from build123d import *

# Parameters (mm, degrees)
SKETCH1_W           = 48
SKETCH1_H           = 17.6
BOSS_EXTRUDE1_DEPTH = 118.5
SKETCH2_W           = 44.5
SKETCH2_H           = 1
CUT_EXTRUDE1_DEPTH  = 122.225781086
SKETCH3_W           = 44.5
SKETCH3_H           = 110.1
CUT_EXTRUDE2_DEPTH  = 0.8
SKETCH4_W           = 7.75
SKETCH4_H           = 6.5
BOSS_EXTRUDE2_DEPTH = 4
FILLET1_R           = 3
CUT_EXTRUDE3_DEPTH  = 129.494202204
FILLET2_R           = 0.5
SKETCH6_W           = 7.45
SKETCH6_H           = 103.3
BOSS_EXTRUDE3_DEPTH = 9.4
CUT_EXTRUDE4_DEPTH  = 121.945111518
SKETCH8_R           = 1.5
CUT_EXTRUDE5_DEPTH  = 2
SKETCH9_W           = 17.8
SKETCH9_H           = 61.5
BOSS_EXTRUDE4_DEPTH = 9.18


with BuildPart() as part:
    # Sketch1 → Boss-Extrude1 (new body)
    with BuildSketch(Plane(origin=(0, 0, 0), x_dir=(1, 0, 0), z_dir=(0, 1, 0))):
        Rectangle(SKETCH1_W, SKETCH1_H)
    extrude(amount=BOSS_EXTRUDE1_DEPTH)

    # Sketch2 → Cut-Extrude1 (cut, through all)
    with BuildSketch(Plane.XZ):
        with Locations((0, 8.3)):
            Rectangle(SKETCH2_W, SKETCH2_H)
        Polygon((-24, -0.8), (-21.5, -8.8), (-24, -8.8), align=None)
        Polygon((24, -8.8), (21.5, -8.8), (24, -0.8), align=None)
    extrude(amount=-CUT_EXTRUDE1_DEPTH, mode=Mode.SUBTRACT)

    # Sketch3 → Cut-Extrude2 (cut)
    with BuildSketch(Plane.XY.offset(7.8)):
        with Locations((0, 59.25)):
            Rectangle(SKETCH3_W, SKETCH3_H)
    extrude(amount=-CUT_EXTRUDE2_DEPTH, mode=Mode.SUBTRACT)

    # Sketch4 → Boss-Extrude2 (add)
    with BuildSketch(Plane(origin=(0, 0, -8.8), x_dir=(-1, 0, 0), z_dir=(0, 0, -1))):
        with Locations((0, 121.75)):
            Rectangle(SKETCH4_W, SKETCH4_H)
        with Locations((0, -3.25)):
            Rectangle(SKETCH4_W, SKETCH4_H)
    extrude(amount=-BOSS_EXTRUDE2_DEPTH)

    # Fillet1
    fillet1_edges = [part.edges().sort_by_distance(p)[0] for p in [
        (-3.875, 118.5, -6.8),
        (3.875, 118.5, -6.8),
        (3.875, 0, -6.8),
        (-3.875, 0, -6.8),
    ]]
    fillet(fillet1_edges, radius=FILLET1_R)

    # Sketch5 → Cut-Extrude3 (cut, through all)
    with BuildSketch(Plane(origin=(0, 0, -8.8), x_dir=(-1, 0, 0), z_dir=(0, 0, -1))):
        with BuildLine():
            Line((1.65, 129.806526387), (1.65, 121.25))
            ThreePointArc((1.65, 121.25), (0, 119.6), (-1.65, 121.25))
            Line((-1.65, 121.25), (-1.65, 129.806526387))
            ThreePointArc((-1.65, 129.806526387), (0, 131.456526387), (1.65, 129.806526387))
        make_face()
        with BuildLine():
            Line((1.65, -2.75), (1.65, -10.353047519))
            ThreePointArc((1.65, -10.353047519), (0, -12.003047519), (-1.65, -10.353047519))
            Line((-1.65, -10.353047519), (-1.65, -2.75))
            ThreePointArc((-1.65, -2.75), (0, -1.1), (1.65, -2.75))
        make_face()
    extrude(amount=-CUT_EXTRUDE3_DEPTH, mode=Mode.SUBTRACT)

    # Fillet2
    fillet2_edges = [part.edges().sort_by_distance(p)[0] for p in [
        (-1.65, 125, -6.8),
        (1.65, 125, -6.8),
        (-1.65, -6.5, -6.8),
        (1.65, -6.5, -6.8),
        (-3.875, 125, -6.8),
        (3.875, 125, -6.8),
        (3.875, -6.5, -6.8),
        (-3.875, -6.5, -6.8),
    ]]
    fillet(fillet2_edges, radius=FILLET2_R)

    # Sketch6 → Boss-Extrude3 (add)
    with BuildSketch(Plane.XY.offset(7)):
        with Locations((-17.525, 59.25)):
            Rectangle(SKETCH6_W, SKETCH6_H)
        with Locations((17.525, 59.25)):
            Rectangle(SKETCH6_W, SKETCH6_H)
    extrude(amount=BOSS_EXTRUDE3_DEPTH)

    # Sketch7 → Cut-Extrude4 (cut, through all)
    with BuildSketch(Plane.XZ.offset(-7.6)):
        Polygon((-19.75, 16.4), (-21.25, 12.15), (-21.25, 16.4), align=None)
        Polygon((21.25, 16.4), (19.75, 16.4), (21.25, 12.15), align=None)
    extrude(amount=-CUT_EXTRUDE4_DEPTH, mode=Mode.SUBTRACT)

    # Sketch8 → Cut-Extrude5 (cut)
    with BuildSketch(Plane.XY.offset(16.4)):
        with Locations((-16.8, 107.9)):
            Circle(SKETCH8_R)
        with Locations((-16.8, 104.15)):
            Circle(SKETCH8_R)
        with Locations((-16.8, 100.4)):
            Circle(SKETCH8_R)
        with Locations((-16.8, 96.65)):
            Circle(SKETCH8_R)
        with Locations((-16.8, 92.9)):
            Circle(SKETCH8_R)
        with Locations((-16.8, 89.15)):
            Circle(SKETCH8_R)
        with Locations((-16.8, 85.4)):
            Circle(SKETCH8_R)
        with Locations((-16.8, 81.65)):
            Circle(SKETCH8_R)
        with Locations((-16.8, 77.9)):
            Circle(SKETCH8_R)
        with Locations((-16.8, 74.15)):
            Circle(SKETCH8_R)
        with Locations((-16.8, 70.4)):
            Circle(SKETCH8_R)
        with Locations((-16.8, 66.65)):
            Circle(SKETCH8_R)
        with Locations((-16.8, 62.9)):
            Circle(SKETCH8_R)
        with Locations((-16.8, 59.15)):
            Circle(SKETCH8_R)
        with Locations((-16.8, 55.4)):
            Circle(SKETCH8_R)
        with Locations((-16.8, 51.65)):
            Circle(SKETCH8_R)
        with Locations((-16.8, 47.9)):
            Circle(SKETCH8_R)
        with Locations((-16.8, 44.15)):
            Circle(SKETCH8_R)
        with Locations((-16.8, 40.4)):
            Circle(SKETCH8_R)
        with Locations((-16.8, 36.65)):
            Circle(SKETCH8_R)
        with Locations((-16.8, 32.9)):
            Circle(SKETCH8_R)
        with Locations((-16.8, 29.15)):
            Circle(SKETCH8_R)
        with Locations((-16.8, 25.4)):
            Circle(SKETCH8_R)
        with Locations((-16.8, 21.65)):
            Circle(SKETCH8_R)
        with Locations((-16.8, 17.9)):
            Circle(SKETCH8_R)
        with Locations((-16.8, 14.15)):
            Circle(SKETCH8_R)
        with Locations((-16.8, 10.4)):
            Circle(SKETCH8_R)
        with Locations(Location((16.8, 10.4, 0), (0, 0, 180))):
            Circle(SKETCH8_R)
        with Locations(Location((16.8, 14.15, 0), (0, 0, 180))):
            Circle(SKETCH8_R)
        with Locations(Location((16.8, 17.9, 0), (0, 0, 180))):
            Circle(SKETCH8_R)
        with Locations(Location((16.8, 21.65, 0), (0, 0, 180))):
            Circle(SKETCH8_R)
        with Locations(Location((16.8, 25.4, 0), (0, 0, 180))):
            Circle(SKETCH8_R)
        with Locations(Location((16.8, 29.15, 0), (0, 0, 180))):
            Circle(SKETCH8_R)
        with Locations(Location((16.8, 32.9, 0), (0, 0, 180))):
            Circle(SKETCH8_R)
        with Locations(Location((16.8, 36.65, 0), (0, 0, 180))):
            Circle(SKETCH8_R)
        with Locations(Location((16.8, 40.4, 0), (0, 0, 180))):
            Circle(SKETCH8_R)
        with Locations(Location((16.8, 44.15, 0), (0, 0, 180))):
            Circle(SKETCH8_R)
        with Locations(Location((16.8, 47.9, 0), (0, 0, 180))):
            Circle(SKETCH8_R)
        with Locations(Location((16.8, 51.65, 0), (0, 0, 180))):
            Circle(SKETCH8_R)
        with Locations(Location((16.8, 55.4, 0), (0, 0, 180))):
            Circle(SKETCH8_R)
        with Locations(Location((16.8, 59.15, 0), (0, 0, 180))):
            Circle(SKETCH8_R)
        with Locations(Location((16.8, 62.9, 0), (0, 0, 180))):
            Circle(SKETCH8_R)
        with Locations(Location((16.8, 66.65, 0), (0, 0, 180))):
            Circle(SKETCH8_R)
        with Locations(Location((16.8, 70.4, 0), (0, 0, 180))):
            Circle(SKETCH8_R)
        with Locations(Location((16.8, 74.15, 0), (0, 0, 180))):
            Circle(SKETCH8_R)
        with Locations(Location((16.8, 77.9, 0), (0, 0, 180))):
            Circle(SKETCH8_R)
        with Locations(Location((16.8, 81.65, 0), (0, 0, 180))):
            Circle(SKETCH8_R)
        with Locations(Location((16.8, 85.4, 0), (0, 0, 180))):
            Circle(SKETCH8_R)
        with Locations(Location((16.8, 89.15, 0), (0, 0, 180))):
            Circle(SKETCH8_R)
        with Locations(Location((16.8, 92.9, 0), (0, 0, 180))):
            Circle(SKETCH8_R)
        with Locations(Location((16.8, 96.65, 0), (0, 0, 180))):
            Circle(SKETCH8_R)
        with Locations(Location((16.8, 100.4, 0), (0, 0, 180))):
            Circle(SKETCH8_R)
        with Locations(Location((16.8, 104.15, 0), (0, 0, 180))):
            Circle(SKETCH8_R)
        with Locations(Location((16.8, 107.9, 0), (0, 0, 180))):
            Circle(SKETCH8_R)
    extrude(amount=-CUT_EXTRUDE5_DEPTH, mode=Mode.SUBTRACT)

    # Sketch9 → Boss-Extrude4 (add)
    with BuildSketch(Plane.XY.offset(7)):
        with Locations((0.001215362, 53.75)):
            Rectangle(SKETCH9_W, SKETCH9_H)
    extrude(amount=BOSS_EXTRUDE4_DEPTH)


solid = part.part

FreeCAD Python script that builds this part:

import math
import FreeCAD as App
import Part
import Sketcher
from FreeCAD import Vector
Q = App.Units.Quantity


def edges_at(feature, points):
    """Names of the edges that pass closest to the given points."""
    edges = feature.Shape.Edges
    near = lambda p: min(range(len(edges)), key=lambda i: edges[i].distToShape(Part.Vertex(*p))[0])
    return sorted({f"Edge{near(p) + 1}" for p in points})

doc = App.newDocument("Part")
params = doc.addObject("Spreadsheet::Sheet", "Params")
for row, (alias, value) in enumerate([
    ("sketch1_width", "48 mm"),
    ("sketch1_height", "17.6 mm"),
    ("pad1_length", "118.5 mm"),
    ("sketch2_height", "1 mm"),
    ("sketch2_height2", "8 mm"),
    ("sketch2_width", "44.5 mm"),
    ("sketch2_width2", "2.5 mm"),
    ("sketch3_width", "44.5 mm"),
    ("sketch3_height", "110.1 mm"),
    ("pocket2_length", "0.8 mm"),
    ("sketch4_height", "6.5 mm"),
    ("sketch4_width", "7.75 mm"),
    ("pad2_length", "4 mm"),
    ("fillet_radius", "3 mm"),
    ("sketch5_radius", "1.65 mm"),
    ("fillet2_radius", "0.5 mm"),
    ("sketch6_height", "103.3 mm"),
    ("sketch6_width", "7.45 mm"),
    ("pad3_length", "9.4 mm"),
    ("sketch7_width", "1.5 mm"),
    ("sketch7_height", "4.25 mm"),
    ("sketch8_diameter", "3 mm"),
    ("pocket5_length", "2 mm"),
    ("sketch9_width", "17.8 mm"),
    ("sketch9_height", "61.5 mm"),
    ("pad4_length", "9.18 mm"),
], start=1):
    params.set(f"A{row}", alias)
    params.set(f"B{row}", "=" + value)
    params.setAlias(f"B{row}", alias)

body = doc.addObject("PartDesign::Body", "Body")

sketch1 = body.newObject("Sketcher::SketchObject", "Sketch")
sketch1.AttachmentSupport = (doc.getObject("XZ_Plane"), [""])
sketch1.MapMode = "FlatFace"
sketch1.addGeometry([
    Part.LineSegment(Vector(-24, -8.8, 0), Vector(-24, 8.8, 0)),
    Part.LineSegment(Vector(-24, 8.8, 0), Vector(24, 8.8, 0)),
    Part.LineSegment(Vector(24, 8.8, 0), Vector(24, -8.8, 0)),
    Part.LineSegment(Vector(24, -8.8, 0), Vector(-24, -8.8, 0)),
], False)
sketch1.addConstraint([
    Sketcher.Constraint("Coincident", 0, 2, 1, 1),
    Sketcher.Constraint("Coincident", 1, 2, 2, 1),
    Sketcher.Constraint("Coincident", 2, 2, 3, 1),
    Sketcher.Constraint("Coincident", 3, 2, 0, 1),
    Sketcher.Constraint("Vertical", 0),
    Sketcher.Constraint("Horizontal", 1),
    Sketcher.Constraint("Vertical", 2),
    Sketcher.Constraint("Horizontal", 3),
    Sketcher.Constraint("Symmetric", 0, 2, 2, 2, -1, 1),
    Sketcher.Constraint("DistanceX", 1, 1, 1, 2, Q("48 mm")),
    Sketcher.Constraint("DistanceY", 0, 1, 0, 2, Q("17.6 mm")),
])
sketch1.setExpression("Constraints[9]", "Params.sketch1_width")
sketch1.setExpression("Constraints[10]", "Params.sketch1_height")
pad1 = body.newObject("PartDesign::Pad", "Pad")
pad1.Profile = sketch1
pad1.setExpression("Length", "Params.pad1_length")
pad1.Reversed = True

sketch2 = body.newObject("Sketcher::SketchObject", "Sketch001")
sketch2.AttachmentSupport = (doc.getObject("XZ_Plane"), [""])
sketch2.MapMode = "FlatFace"
sketch2.addGeometry([
    Part.LineSegment(Vector(-22.25, 8.8, 0), Vector(-22.25, 7.8, 0)),
    Part.LineSegment(Vector(-22.25, 7.8, 0), Vector(22.25, 7.8, 0)),
    Part.LineSegment(Vector(22.25, 7.8, 0), Vector(22.25, 8.8, 0)),
    Part.LineSegment(Vector(22.25, 8.8, 0), Vector(-22.25, 8.8, 0)),
    Part.LineSegment(Vector(-21.5, -8.8, 0), Vector(-24, -0.8, 0)),
    Part.LineSegment(Vector(-24, -0.8, 0), Vector(-24, -8.8, 0)),
    Part.LineSegment(Vector(-24, -8.8, 0), Vector(-21.5, -8.8, 0)),
    Part.LineSegment(Vector(21.5, -8.8, 0), Vector(24, -8.8, 0)),
    Part.LineSegment(Vector(24, -8.8, 0), Vector(24, -0.8, 0)),
    Part.LineSegment(Vector(24, -0.8, 0), Vector(21.5, -8.8, 0)),
], False)
sketch2.addConstraint([
    Sketcher.Constraint("Coincident", 0, 2, 1, 1),
    Sketcher.Constraint("Coincident", 1, 2, 2, 1),
    Sketcher.Constraint("Coincident", 2, 2, 3, 1),
    Sketcher.Constraint("Coincident", 3, 2, 0, 1),
    Sketcher.Constraint("Coincident", 4, 2, 5, 1),
    Sketcher.Constraint("Coincident", 5, 2, 6, 1),
    Sketcher.Constraint("Coincident", 6, 2, 4, 1),
    Sketcher.Constraint("Coincident", 7, 2, 8, 1),
    Sketcher.Constraint("Coincident", 8, 2, 9, 1),
    Sketcher.Constraint("Coincident", 9, 2, 7, 1),
    Sketcher.Constraint("Vertical", 0),
    Sketcher.Constraint("Horizontal", 1),
    Sketcher.Constraint("Vertical", 2),
    Sketcher.Constraint("Horizontal", 3),
    Sketcher.Constraint("Vertical", 5),
    Sketcher.Constraint("Horizontal", 6),
    Sketcher.Constraint("Horizontal", 7),
    Sketcher.Constraint("Vertical", 8),
    Sketcher.Constraint("Symmetric", 5, 2, 7, 2, -2),
    Sketcher.Constraint("Horizontal", 4, 2, 8, 2),
    Sketcher.Constraint("Equal", 6, 7),
    Sketcher.Constraint("DistanceY", 0, 2, 0, 1, Q("1 mm")),
    Sketcher.Constraint("DistanceY", 5, 2, 5, 1, Q("8 mm")),
    Sketcher.Constraint("DistanceX", 1, 1, 1, 2, Q("44.5 mm")),
    Sketcher.Constraint("DistanceX", 6, 1, 6, 2, Q("2.5 mm")),
    Sketcher.Constraint("DistanceX", 4, 2, -1, 1, Q("24 mm")),
    Sketcher.Constraint("DistanceY", -1, 1, 0, 2, Q("7.8 mm")),
    Sketcher.Constraint("DistanceY", 4, 2, -1, 1, Q("0.8 mm")),
    Sketcher.Constraint("DistanceX", 0, 2, -1, 1, Q("22.25 mm")),
])
sketch2.setExpression("Constraints[21]", "Params.sketch2_height")
sketch2.setExpression("Constraints[22]", "Params.sketch2_height2")
sketch2.setExpression("Constraints[23]", "Params.sketch2_width")
sketch2.setExpression("Constraints[24]", "Params.sketch2_width2")
pocket1 = body.newObject("PartDesign::Pocket", "Pocket")
pocket1.Profile = sketch2
pocket1.Type = "ThroughAll"

sketch3 = body.newObject("Sketcher::SketchObject", "Sketch002")
sketch3.AttachmentSupport = (doc.getObject("XY_Plane"), [""])
sketch3.MapMode = "FlatFace"
sketch3.AttachmentOffset = App.Placement(Vector(0, 0, 7.8), App.Rotation())
sketch3.addGeometry([
    Part.LineSegment(Vector(-22.25, 114.3, 0), Vector(-22.25, 4.2, 0)),
    Part.LineSegment(Vector(-22.25, 4.2, 0), Vector(22.25, 4.2, 0)),
    Part.LineSegment(Vector(22.25, 4.2, 0), Vector(22.25, 114.3, 0)),
    Part.LineSegment(Vector(22.25, 114.3, 0), Vector(-22.25, 114.3, 0)),
], False)
sketch3.addConstraint([
    Sketcher.Constraint("Coincident", 0, 2, 1, 1),
    Sketcher.Constraint("Coincident", 1, 2, 2, 1),
    Sketcher.Constraint("Coincident", 2, 2, 3, 1),
    Sketcher.Constraint("Coincident", 3, 2, 0, 1),
    Sketcher.Constraint("Vertical", 0),
    Sketcher.Constraint("Horizontal", 1),
    Sketcher.Constraint("Vertical", 2),
    Sketcher.Constraint("Horizontal", 3),
    Sketcher.Constraint("DistanceX", 1, 1, 1, 2, Q("44.5 mm")),
    Sketcher.Constraint("DistanceY", 0, 2, 0, 1, Q("110.1 mm")),
    Sketcher.Constraint("DistanceY", -1, 1, 0, 2, Q("4.2 mm")),
    Sketcher.Constraint("DistanceX", 0, 2, -1, 1, Q("22.25 mm")),
])
sketch3.setExpression("Constraints[8]", "Params.sketch3_width")
sketch3.setExpression("Constraints[9]", "Params.sketch3_height")
pocket2 = body.newObject("PartDesign::Pocket", "Pocket001")
pocket2.Profile = sketch3
pocket2.setExpression("Length", "Params.pocket2_length")

sketch4 = body.newObject("Sketcher::SketchObject", "Sketch003")
sketch4.AttachmentSupport = (doc.getObject("XY_Plane"), [""])
sketch4.MapMode = "FlatFace"
sketch4.AttachmentOffset = App.Placement(Vector(0, 0, -8.8), App.Rotation())
sketch4.addGeometry([
    Part.LineSegment(Vector(3.875, 125, 0), Vector(3.875, 118.5, 0)),
    Part.LineSegment(Vector(3.875, 118.5, 0), Vector(-3.875, 118.5, 0)),
    Part.LineSegment(Vector(-3.875, 118.5, 0), Vector(-3.875, 125, 0)),
    Part.LineSegment(Vector(-3.875, 125, 0), Vector(3.875, 125, 0)),
    Part.LineSegment(Vector(3.875, 0, 0), Vector(3.875, -6.5, 0)),
    Part.LineSegment(Vector(3.875, -6.5, 0), Vector(-3.875, -6.5, 0)),
    Part.LineSegment(Vector(-3.875, -6.5, 0), Vector(-3.875, 0, 0)),
    Part.LineSegment(Vector(-3.875, 0, 0), Vector(3.875, 0, 0)),
], False)
sketch4.addConstraint([
    Sketcher.Constraint("Coincident", 0, 2, 1, 1),
    Sketcher.Constraint("Coincident", 1, 2, 2, 1),
    Sketcher.Constraint("Coincident", 2, 2, 3, 1),
    Sketcher.Constraint("Coincident", 3, 2, 0, 1),
    Sketcher.Constraint("Coincident", 4, 2, 5, 1),
    Sketcher.Constraint("Coincident", 5, 2, 6, 1),
    Sketcher.Constraint("Coincident", 6, 2, 7, 1),
    Sketcher.Constraint("Coincident", 7, 2, 4, 1),
    Sketcher.Constraint("Vertical", 0),
    Sketcher.Constraint("Horizontal", 1),
    Sketcher.Constraint("Vertical", 2),
    Sketcher.Constraint("Horizontal", 3),
    Sketcher.Constraint("Vertical", 4),
    Sketcher.Constraint("Horizontal", 5),
    Sketcher.Constraint("Vertical", 6),
    Sketcher.Constraint("Horizontal", 7),
    Sketcher.Constraint("Symmetric", 6, 2, 7, 2, -1, 1),
    Sketcher.Constraint("Vertical", 3, 2, 4, 2),
    Sketcher.Constraint("Vertical", 2, 2, 5, 2),
    Sketcher.Constraint("Equal", 2, 4),
    Sketcher.Constraint("DistanceY", 0, 2, 0, 1, Q("6.5 mm")),
    Sketcher.Constraint("DistanceY", -1, 1, 2, 2, Q("125 mm")),
    Sketcher.Constraint("DistanceX", 1, 2, 1, 1, Q("7.75 mm")),
])
sketch4.setExpression("Constraints[20]", "Params.sketch4_height")
sketch4.setExpression("Constraints[22]", "Params.sketch4_width")
pad2 = body.newObject("PartDesign::Pad", "Pad001")
pad2.Profile = sketch4
pad2.setExpression("Length", "Params.pad2_length")
doc.recompute()

fillet = body.newObject("PartDesign::Fillet", "Fillet")
fillet.Base = (pad2, edges_at(pad2, [
    (-3.875, 118.5, -6.8),
    (3.875, 118.5, -6.8),
    (3.875, 0, -6.8),
    (-3.875, 0, -6.8),
]))
fillet.setExpression("Radius", "Params.fillet_radius")

sketch5 = body.newObject("Sketcher::SketchObject", "Sketch004")
sketch5.AttachmentSupport = (doc.getObject("XY_Plane"), [""])
sketch5.MapMode = "FlatFace"
sketch5.AttachmentOffset = App.Placement(Vector(0, 0, -8.8), App.Rotation())
sketch5.addGeometry([
    Part.LineSegment(Vector(-1.65, 121.25, 0), Vector(-1.65, 129.806526, 0)),
    Part.ArcOfCircle(Part.Circle(Vector(0, 129.806526, 0), Vector(0, 0, 1), 1.65), math.radians(0), math.radians(180)),
    Part.LineSegment(Vector(1.65, 129.806526, 0), Vector(1.65, 121.25, 0)),
    Part.ArcOfCircle(Part.Circle(Vector(0, 121.25, 0), Vector(0, 0, 1), 1.65), math.radians(180), math.radians(360)),
    Part.LineSegment(Vector(-1.65, -10.353048, 0), Vector(-1.65, -2.75, 0)),
    Part.ArcOfCircle(Part.Circle(Vector(0, -2.75, 0), Vector(0, 0, 1), 1.65), math.radians(0), math.radians(180)),
    Part.LineSegment(Vector(1.65, -2.75, 0), Vector(1.65, -10.353048, 0)),
    Part.ArcOfCircle(Part.Circle(Vector(0, -10.353048, 0), Vector(0, 0, 1), 1.65), math.radians(180), math.radians(360)),
], False)
sketch5.addConstraint([
    Sketcher.Constraint("Tangent", 0, 2, 1, 2),
    Sketcher.Constraint("Tangent", 1, 1, 2, 1),
    Sketcher.Constraint("Tangent", 2, 2, 3, 2),
    Sketcher.Constraint("Tangent", 3, 1, 0, 1),
    Sketcher.Constraint("Tangent", 4, 2, 5, 2),
    Sketcher.Constraint("Tangent", 5, 1, 6, 1),
    Sketcher.Constraint("Tangent", 6, 2, 7, 2),
    Sketcher.Constraint("Tangent", 7, 1, 4, 1),
    Sketcher.Constraint("Vertical", 0),
    Sketcher.Constraint("Vertical", 2),
    Sketcher.Constraint("Vertical", 4),
    Sketcher.Constraint("Vertical", 6),
    Sketcher.Constraint("Equal", 3, 5),
    Sketcher.Constraint("PointOnObject", 1, 3, -2),
    Sketcher.Constraint("PointOnObject", 5, 3, -2),
    Sketcher.Constraint("Radius", 1, Q("1.65 mm")),
    Sketcher.Constraint("DistanceY", 5, 3, 3, 3, Q("124 mm")),
    Sketcher.Constraint("DistanceY", -1, 1, 3, 3, Q("121.25 mm")),
    Sketcher.Constraint("DistanceY", 0, 1, 0, 2, Q("8.556526 mm")),
    Sketcher.Constraint("DistanceY", 4, 1, 4, 2, Q("7.603048 mm")),
])
sketch5.setExpression("Constraints[15]", "Params.sketch5_radius")
pocket3 = body.newObject("PartDesign::Pocket", "Pocket002")
pocket3.Profile = sketch5
pocket3.Type = "ThroughAll"
pocket3.Reversed = True
doc.recompute()

fillet2 = body.newObject("PartDesign::Fillet", "Fillet001")
fillet2.Base = (pocket3, edges_at(pocket3, [
    (-1.65, 125, -6.8),
    (1.65, 125, -6.8),
    (-1.65, -6.5, -6.8),
    (1.65, -6.5, -6.8),
    (-3.875, 125, -6.8),
    (3.875, 125, -6.8),
    (3.875, -6.5, -6.8),
    (-3.875, -6.5, -6.8),
]))
fillet2.setExpression("Radius", "Params.fillet2_radius")

sketch6 = body.newObject("Sketcher::SketchObject", "Sketch005")
sketch6.AttachmentSupport = (doc.getObject("XY_Plane"), [""])
sketch6.MapMode = "FlatFace"
sketch6.AttachmentOffset = App.Placement(Vector(0, 0, 7), App.Rotation())
sketch6.addGeometry([
    Part.LineSegment(Vector(-21.25, 110.9, 0), Vector(-21.25, 7.6, 0)),
    Part.LineSegment(Vector(-21.25, 7.6, 0), Vector(-13.8, 7.6, 0)),
    Part.LineSegment(Vector(-13.8, 7.6, 0), Vector(-13.8, 110.9, 0)),
    Part.LineSegment(Vector(-13.8, 110.9, 0), Vector(-21.25, 110.9, 0)),
    Part.LineSegment(Vector(13.8, 110.9, 0), Vector(13.8, 7.6, 0)),
    Part.LineSegment(Vector(13.8, 7.6, 0), Vector(21.25, 7.6, 0)),
    Part.LineSegment(Vector(21.25, 7.6, 0), Vector(21.25, 110.9, 0)),
    Part.LineSegment(Vector(21.25, 110.9, 0), Vector(13.8, 110.9, 0)),
], False)
sketch6.addConstraint([
    Sketcher.Constraint("Coincident", 0, 2, 1, 1),
    Sketcher.Constraint("Coincident", 1, 2, 2, 1),
    Sketcher.Constraint("Coincident", 2, 2, 3, 1),
    Sketcher.Constraint("Coincident", 3, 2, 0, 1),
    Sketcher.Constraint("Coincident", 4, 2, 5, 1),
    Sketcher.Constraint("Coincident", 5, 2, 6, 1),
    Sketcher.Constraint("Coincident", 6, 2, 7, 1),
    Sketcher.Constraint("Coincident", 7, 2, 4, 1),
    Sketcher.Constraint("Vertical", 0),
    Sketcher.Constraint("Horizontal", 1),
    Sketcher.Constraint("Vertical", 2),
    Sketcher.Constraint("Horizontal", 3),
    Sketcher.Constraint("Vertical", 4),
    Sketcher.Constraint("Horizontal", 5),
    Sketcher.Constraint("Vertical", 6),
    Sketcher.Constraint("Horizontal", 7),
    Sketcher.Constraint("Symmetric", 1, 2, 4, 2, -2),
    Sketcher.Constraint("Symmetric", 3, 2, 6, 2, -2),
    Sketcher.Constraint("DistanceY", 0, 2, 0, 1, Q("103.3 mm")),
    Sketcher.Constraint("DistanceX", 1, 1, 1, 2, Q("7.45 mm")),
    Sketcher.Constraint("DistanceY", -1, 1, 0, 2, Q("7.6 mm")),
    Sketcher.Constraint("DistanceX", 1, 2, -1, 1, Q("13.8 mm")),
])
sketch6.setExpression("Constraints[18]", "Params.sketch6_height")
sketch6.setExpression("Constraints[19]", "Params.sketch6_width")
pad3 = body.newObject("PartDesign::Pad", "Pad002")
pad3.Profile = sketch6
pad3.setExpression("Length", "Params.pad3_length")

sketch7 = body.newObject("Sketcher::SketchObject", "Sketch006")
sketch7.AttachmentSupport = (doc.getObject("XZ_Plane"), [""])
sketch7.MapMode = "FlatFace"
sketch7.AttachmentOffset = App.Placement(Vector(0, 0, -7.6), App.Rotation())
sketch7.addGeometry([
    Part.LineSegment(Vector(-21.25, 12.15, 0), Vector(-19.75, 16.4, 0)),
    Part.LineSegment(Vector(-19.75, 16.4, 0), Vector(-21.25, 16.4, 0)),
    Part.LineSegment(Vector(-21.25, 16.4, 0), Vector(-21.25, 12.15, 0)),
    Part.LineSegment(Vector(21.25, 16.4, 0), Vector(19.75, 16.4, 0)),
    Part.LineSegment(Vector(19.75, 16.4, 0), Vector(21.25, 12.15, 0)),
    Part.LineSegment(Vector(21.25, 12.15, 0), Vector(21.25, 16.4, 0)),
], False)
sketch7.addConstraint([
    Sketcher.Constraint("Coincident", 0, 2, 1, 1),
    Sketcher.Constraint("Coincident", 1, 2, 2, 1),
    Sketcher.Constraint("Coincident", 2, 2, 0, 1),
    Sketcher.Constraint("Coincident", 3, 2, 4, 1),
    Sketcher.Constraint("Coincident", 4, 2, 5, 1),
    Sketcher.Constraint("Coincident", 5, 2, 3, 1),
    Sketcher.Constraint("Horizontal", 1),
    Sketcher.Constraint("Vertical", 2),
    Sketcher.Constraint("Horizontal", 3),
    Sketcher.Constraint("Vertical", 5),
    Sketcher.Constraint("Symmetric", 0, 2, 3, 2, -2),
    Sketcher.Constraint("Symmetric", 2, 2, 4, 2, -2),
    Sketcher.Constraint("DistanceX", 1, 2, 1, 1, Q("1.5 mm")),
    Sketcher.Constraint("DistanceX", 1, 2, 3, 2, Q("41 mm")),
    Sketcher.Constraint("DistanceY", 2, 2, 2, 1, Q("4.25 mm")),
    Sketcher.Constraint("DistanceY", -1, 1, 0, 2, Q("16.4 mm")),
])
sketch7.setExpression("Constraints[12]", "Params.sketch7_width")
sketch7.setExpression("Constraints[14]", "Params.sketch7_height")
pocket4 = body.newObject("PartDesign::Pocket", "Pocket003")
pocket4.Profile = sketch7
pocket4.Type = "ThroughAll"

sketch8 = body.newObject("Sketcher::SketchObject", "Sketch007")
sketch8.AttachmentSupport = (doc.getObject("XY_Plane"), [""])
sketch8.MapMode = "FlatFace"
sketch8.AttachmentOffset = App.Placement(Vector(0, 0, 16.4), App.Rotation())
sketch8.addGeometry([
    Part.Circle(Vector(-16.8, 107.9, 0), Vector(0, 0, 1), 1.5),
    Part.Circle(Vector(-16.8, 104.15, 0), Vector(0, 0, 1), 1.5),
    Part.Circle(Vector(-16.8, 100.4, 0), Vector(0, 0, 1), 1.5),
    Part.Circle(Vector(-16.8, 96.65, 0), Vector(0, 0, 1), 1.5),
    Part.Circle(Vector(-16.8, 92.9, 0), Vector(0, 0, 1), 1.5),
    Part.Circle(Vector(-16.8, 89.15, 0), Vector(0, 0, 1), 1.5),
    Part.Circle(Vector(-16.8, 85.4, 0), Vector(0, 0, 1), 1.5),
    Part.Circle(Vector(-16.8, 81.65, 0), Vector(0, 0, 1), 1.5),
    Part.Circle(Vector(-16.8, 77.9, 0), Vector(0, 0, 1), 1.5),
    Part.Circle(Vector(-16.8, 74.15, 0), Vector(0, 0, 1), 1.5),
    Part.Circle(Vector(-16.8, 70.4, 0), Vector(0, 0, 1), 1.5),
    Part.Circle(Vector(-16.8, 66.65, 0), Vector(0, 0, 1), 1.5),
    Part.Circle(Vector(-16.8, 62.9, 0), Vector(0, 0, 1), 1.5),
    Part.Circle(Vector(-16.8, 59.15, 0), Vector(0, 0, 1), 1.5),
    Part.Circle(Vector(-16.8, 55.4, 0), Vector(0, 0, 1), 1.5),
    Part.Circle(Vector(-16.8, 51.65, 0), Vector(0, 0, 1), 1.5),
    Part.Circle(Vector(-16.8, 47.9, 0), Vector(0, 0, 1), 1.5),
    Part.Circle(Vector(-16.8, 44.15, 0), Vector(0, 0, 1), 1.5),
    Part.Circle(Vector(-16.8, 40.4, 0), Vector(0, 0, 1), 1.5),
    Part.Circle(Vector(-16.8, 36.65, 0), Vector(0, 0, 1), 1.5),
    Part.Circle(Vector(-16.8, 32.9, 0), Vector(0, 0, 1), 1.5),
    Part.Circle(Vector(-16.8, 29.15, 0), Vector(0, 0, 1), 1.5),
    Part.Circle(Vector(-16.8, 25.4, 0), Vector(0, 0, 1), 1.5),
    Part.Circle(Vector(-16.8, 21.65, 0), Vector(0, 0, 1), 1.5),
    Part.Circle(Vector(-16.8, 17.9, 0), Vector(0, 0, 1), 1.5),
    Part.Circle(Vector(-16.8, 14.15, 0), Vector(0, 0, 1), 1.5),
    Part.Circle(Vector(-16.8, 10.4, 0), Vector(0, 0, 1), 1.5),
    Part.Circle(Vector(16.8, 10.4, 0), Vector(0, 0, 1), 1.5),
    Part.Circle(Vector(16.8, 14.15, 0), Vector(0, 0, 1), 1.5),
    Part.Circle(Vector(16.8, 17.9, 0), Vector(0, 0, 1), 1.5),
    Part.Circle(Vector(16.8, 21.65, 0), Vector(0, 0, 1), 1.5),
    Part.Circle(Vector(16.8, 25.4, 0), Vector(0, 0, 1), 1.5),
    Part.Circle(Vector(16.8, 29.15, 0), Vector(0, 0, 1), 1.5),
    Part.Circle(Vector(16.8, 32.9, 0), Vector(0, 0, 1), 1.5),
    Part.Circle(Vector(16.8, 36.65, 0), Vector(0, 0, 1), 1.5),
    Part.Circle(Vector(16.8, 40.4, 0), Vector(0, 0, 1), 1.5),
    Part.Circle(Vector(16.8, 44.15, 0), Vector(0, 0, 1), 1.5),
    Part.Circle(Vector(16.8, 47.9, 0), Vector(0, 0, 1), 1.5),
    Part.Circle(Vector(16.8, 51.65, 0), Vector(0, 0, 1), 1.5),
    Part.Circle(Vector(16.8, 55.4, 0), Vector(0, 0, 1), 1.5),
    Part.Circle(Vector(16.8, 59.15, 0), Vector(0, 0, 1), 1.5),
    Part.Circle(Vector(16.8, 62.9, 0), Vector(0, 0, 1), 1.5),
    Part.Circle(Vector(16.8, 66.65, 0), Vector(0, 0, 1), 1.5),
    Part.Circle(Vector(16.8, 70.4, 0), Vector(0, 0, 1), 1.5),
    Part.Circle(Vector(16.8, 74.15, 0), Vector(0, 0, 1), 1.5),
    Part.Circle(Vector(16.8, 77.9, 0), Vector(0, 0, 1), 1.5),
    Part.Circle(Vector(16.8, 81.65, 0), Vector(0, 0, 1), 1.5),
    Part.Circle(Vector(16.8, 85.4, 0), Vector(0, 0, 1), 1.5),
    Part.Circle(Vector(16.8, 89.15, 0), Vector(0, 0, 1), 1.5),
    Part.Circle(Vector(16.8, 92.9, 0), Vector(0, 0, 1), 1.5),
    Part.Circle(Vector(16.8, 96.65, 0), Vector(0, 0, 1), 1.5),
    Part.Circle(Vector(16.8, 100.4, 0), Vector(0, 0, 1), 1.5),
    Part.Circle(Vector(16.8, 104.15, 0), Vector(0, 0, 1), 1.5),
    Part.Circle(Vector(16.8, 107.9, 0), Vector(0, 0, 1), 1.5),
], False)
sketch8.addConstraint([
    Sketcher.Constraint("Equal", 0, 1),
    Sketcher.Constraint("Equal", 1, 2),
    Sketcher.Constraint("Equal", 2, 3),
    Sketcher.Constraint("Equal", 3, 4),
    Sketcher.Constraint("Equal", 4, 5),
    Sketcher.Constraint("Equal", 5, 6),
    Sketcher.Constraint("Equal", 6, 7),
    Sketcher.Constraint("Equal", 7, 8),
    Sketcher.Constraint("Equal", 8, 9),
    Sketcher.Constraint("Equal", 9, 10),
    Sketcher.Constraint("Equal", 10, 11),
    Sketcher.Constraint("Equal", 11, 12),
    Sketcher.Constraint("Equal", 12, 13),
    Sketcher.Constraint("Equal", 13, 14),
    Sketcher.Constraint("Equal", 14, 15),
    Sketcher.Constraint("Equal", 15, 16),
    Sketcher.Constraint("Equal", 16, 17),
    Sketcher.Constraint("Equal", 17, 18),
    Sketcher.Constraint("Equal", 18, 19),
    Sketcher.Constraint("Equal", 19, 20),
    Sketcher.Constraint("Equal", 20, 21),
    Sketcher.Constraint("Equal", 21, 22),
    Sketcher.Constraint("Equal", 22, 23),
    Sketcher.Constraint("Equal", 23, 24),
    Sketcher.Constraint("Equal", 24, 25),
    Sketcher.Constraint("Equal", 25, 26),
    Sketcher.Constraint("Equal", 26, 27),
    Sketcher.Constraint("Equal", 27, 28),
    Sketcher.Constraint("Equal", 28, 29),
    Sketcher.Constraint("Equal", 29, 30),
    Sketcher.Constraint("Equal", 30, 31),
    Sketcher.Constraint("Equal", 31, 32),
    Sketcher.Constraint("Equal", 32, 33),
    Sketcher.Constraint("Equal", 33, 34),
    Sketcher.Constraint("Equal", 34, 35),
    Sketcher.Constraint("Equal", 35, 36),
    Sketcher.Constraint("Equal", 36, 37),
    Sketcher.Constraint("Equal", 37, 38),
    Sketcher.Constraint("Equal", 38, 39),
    Sketcher.Constraint("Equal", 39, 40),
    Sketcher.Constraint("Equal", 40, 41),
    Sketcher.Constraint("Equal", 41, 42),
    Sketcher.Constraint("Equal", 42, 43),
    Sketcher.Constraint("Equal", 43, 44),
    Sketcher.Constraint("Equal", 44, 45),
    Sketcher.Constraint("Equal", 45, 46),
    Sketcher.Constraint("Equal", 46, 47),
    Sketcher.Constraint("Equal", 47, 48),
    Sketcher.Constraint("Equal", 48, 49),
    Sketcher.Constraint("Equal", 49, 50),
    Sketcher.Constraint("Equal", 50, 51),
    Sketcher.Constraint("Equal", 51, 52),
    Sketcher.Constraint("Equal", 52, 53),
    Sketcher.Constraint("Symmetric", 26, 3, 27, 3, -2),
    Sketcher.Constraint("Symmetric", 25, 3, 28, 3, -2),
    Sketcher.Constraint("Symmetric", 24, 3, 29, 3, -2),
    Sketcher.Constraint("Symmetric", 23, 3, 30, 3, -2),
    Sketcher.Constraint("Symmetric", 22, 3, 31, 3, -2),
    Sketcher.Constraint("Symmetric", 21, 3, 32, 3, -2),
    Sketcher.Constraint("Symmetric", 20, 3, 33, 3, -2),
    Sketcher.Constraint("Symmetric", 19, 3, 34, 3, -2),
    Sketcher.Constraint("Symmetric", 18, 3, 35, 3, -2),
    Sketcher.Constraint("Symmetric", 17, 3, 36, 3, -2),
    Sketcher.Constraint("Symmetric", 16, 3, 37, 3, -2),
    Sketcher.Constraint("Symmetric", 15, 3, 38, 3, -2),
    Sketcher.Constraint("Symmetric", 14, 3, 39, 3, -2),
    Sketcher.Constraint("Symmetric", 13, 3, 40, 3, -2),
    Sketcher.Constraint("Symmetric", 12, 3, 41, 3, -2),
    Sketcher.Constraint("Symmetric", 11, 3, 42, 3, -2),
    Sketcher.Constraint("Symmetric", 10, 3, 43, 3, -2),
    Sketcher.Constraint("Symmetric", 9, 3, 44, 3, -2),
    Sketcher.Constraint("Symmetric", 8, 3, 45, 3, -2),
    Sketcher.Constraint("Symmetric", 7, 3, 46, 3, -2),
    Sketcher.Constraint("Symmetric", 6, 3, 47, 3, -2),
    Sketcher.Constraint("Symmetric", 5, 3, 48, 3, -2),
    Sketcher.Constraint("Symmetric", 4, 3, 49, 3, -2),
    Sketcher.Constraint("Symmetric", 3, 3, 50, 3, -2),
    Sketcher.Constraint("Symmetric", 2, 3, 51, 3, -2),
    Sketcher.Constraint("Symmetric", 1, 3, 52, 3, -2),
    Sketcher.Constraint("Symmetric", 0, 3, 53, 3, -2),
    Sketcher.Constraint("Vertical", 0, 3, 1, 3),
    Sketcher.Constraint("Vertical", 1, 3, 2, 3),
    Sketcher.Constraint("Vertical", 2, 3, 3, 3),
    Sketcher.Constraint("Vertical", 3, 3, 4, 3),
    Sketcher.Constraint("Vertical", 4, 3, 5, 3),
    Sketcher.Constraint("Vertical", 5, 3, 6, 3),
    Sketcher.Constraint("Vertical", 6, 3, 7, 3),
    Sketcher.Constraint("Vertical", 7, 3, 8, 3),
    Sketcher.Constraint("Vertical", 8, 3, 9, 3),
    Sketcher.Constraint("Vertical", 9, 3, 10, 3),
    Sketcher.Constraint("Vertical", 10, 3, 11, 3),
    Sketcher.Constraint("Vertical", 11, 3, 12, 3),
    Sketcher.Constraint("Vertical", 12, 3, 13, 3),
    Sketcher.Constraint("Vertical", 13, 3, 14, 3),
    Sketcher.Constraint("Vertical", 14, 3, 15, 3),
    Sketcher.Constraint("Vertical", 15, 3, 16, 3),
    Sketcher.Constraint("Vertical", 16, 3, 17, 3),
    Sketcher.Constraint("Vertical", 17, 3, 18, 3),
    Sketcher.Constraint("Vertical", 18, 3, 19, 3),
    Sketcher.Constraint("Vertical", 19, 3, 20, 3),
    Sketcher.Constraint("Vertical", 20, 3, 21, 3),
    Sketcher.Constraint("Vertical", 21, 3, 22, 3),
    Sketcher.Constraint("Vertical", 22, 3, 23, 3),
    Sketcher.Constraint("Vertical", 23, 3, 24, 3),
    Sketcher.Constraint("Vertical", 24, 3, 25, 3),
    Sketcher.Constraint("Vertical", 25, 3, 26, 3),
    Sketcher.Constraint("Diameter", 0, Q("3 mm")),
    Sketcher.Constraint("DistanceY", 4, 3, 0, 3, Q("15 mm")),
    Sketcher.Constraint("DistanceY", 5, 3, 1, 3, Q("15 mm")),
    Sketcher.Constraint("DistanceY", 6, 3, 2, 3, Q("15 mm")),
    Sketcher.Constraint("DistanceY", 7, 3, 3, 3, Q("15 mm")),
    Sketcher.Constraint("DistanceY", 8, 3, 4, 3, Q("15 mm")),
    Sketcher.Constraint("DistanceY", 9, 3, 5, 3, Q("15 mm")),
    Sketcher.Constraint("DistanceY", 10, 3, 6, 3, Q("15 mm")),
    Sketcher.Constraint("DistanceY", 11, 3, 7, 3, Q("15 mm")),
    Sketcher.Constraint("DistanceY", 12, 3, 8, 3, Q("15 mm")),
    Sketcher.Constraint("DistanceY", 13, 3, 9, 3, Q("15 mm")),
    Sketcher.Constraint("DistanceY", 14, 3, 10, 3, Q("15 mm")),
    Sketcher.Constraint("DistanceY", 15, 3, 11, 3, Q("15 mm")),
    Sketcher.Constraint("DistanceY", 16, 3, 12, 3, Q("15 mm")),
    Sketcher.Constraint("DistanceY", 17, 3, 13, 3, Q("15 mm")),
    Sketcher.Constraint("DistanceY", 18, 3, 14, 3, Q("15 mm")),
    Sketcher.Constraint("DistanceY", 19, 3, 15, 3, Q("15 mm")),
    Sketcher.Constraint("DistanceY", 20, 3, 16, 3, Q("15 mm")),
    Sketcher.Constraint("DistanceY", 21, 3, 17, 3, Q("15 mm")),
    Sketcher.Constraint("DistanceY", 22, 3, 18, 3, Q("15 mm")),
    Sketcher.Constraint("DistanceY", 23, 3, 19, 3, Q("15 mm")),
    Sketcher.Constraint("DistanceY", 24, 3, 20, 3, Q("15 mm")),
    Sketcher.Constraint("DistanceY", 25, 3, 21, 3, Q("15 mm")),
    Sketcher.Constraint("DistanceY", 26, 3, 22, 3, Q("15 mm")),
    Sketcher.Constraint("DistanceX", 0, 3, -1, 1, Q("16.8 mm")),
    Sketcher.Constraint("DistanceY", -1, 1, 0, 3, Q("107.9 mm")),
    Sketcher.Constraint("DistanceY", -1, 1, 2, 3, Q("100.4 mm")),
    Sketcher.Constraint("DistanceY", 3, 3, 1, 3, Q("7.5 mm")),
    Sketcher.Constraint("DistanceY", -1, 1, 1, 3, Q("104.15 mm")),
])
sketch8.setExpression("Constraints[106]", "Params.sketch8_diameter")
pocket5 = body.newObject("PartDesign::Pocket", "Pocket004")
pocket5.Profile = sketch8
pocket5.setExpression("Length", "Params.pocket5_length")

sketch9 = body.newObject("Sketcher::SketchObject", "Sketch008")
sketch9.AttachmentSupport = (doc.getObject("XY_Plane"), [""])
sketch9.MapMode = "FlatFace"
sketch9.AttachmentOffset = App.Placement(Vector(0, 0, 7), App.Rotation())
sketch9.addGeometry([
    Part.LineSegment(Vector(-8.898785, 84.5, 0), Vector(-8.898785, 23, 0)),
    Part.LineSegment(Vector(-8.898785, 23, 0), Vector(8.901215, 23, 0)),
    Part.LineSegment(Vector(8.901215, 23, 0), Vector(8.901215, 84.5, 0)),
    Part.LineSegment(Vector(8.901215, 84.5, 0), Vector(-8.898785, 84.5, 0)),
], False)
sketch9.addConstraint([
    Sketcher.Constraint("Coincident", 0, 2, 1, 1),
    Sketcher.Constraint("Coincident", 1, 2, 2, 1),
    Sketcher.Constraint("Coincident", 2, 2, 3, 1),
    Sketcher.Constraint("Coincident", 3, 2, 0, 1),
    Sketcher.Constraint("Vertical", 0),
    Sketcher.Constraint("Horizontal", 1),
    Sketcher.Constraint("Vertical", 2),
    Sketcher.Constraint("Horizontal", 3),
    Sketcher.Constraint("DistanceX", 1, 1, 1, 2, Q("17.8 mm")),
    Sketcher.Constraint("DistanceY", 0, 2, 0, 1, Q("61.5 mm")),
    Sketcher.Constraint("DistanceY", -1, 1, 0, 2, Q("23 mm")),
    Sketcher.Constraint("DistanceX", 0, 2, -1, 1, Q("8.898785 mm")),
])
sketch9.setExpression("Constraints[8]", "Params.sketch9_width")
sketch9.setExpression("Constraints[9]", "Params.sketch9_height")
pad4 = body.newObject("PartDesign::Pad", "Pad003")
pad4.Profile = sketch9
pad4.setExpression("Length", "Params.pad4_length")

doc.recompute()
